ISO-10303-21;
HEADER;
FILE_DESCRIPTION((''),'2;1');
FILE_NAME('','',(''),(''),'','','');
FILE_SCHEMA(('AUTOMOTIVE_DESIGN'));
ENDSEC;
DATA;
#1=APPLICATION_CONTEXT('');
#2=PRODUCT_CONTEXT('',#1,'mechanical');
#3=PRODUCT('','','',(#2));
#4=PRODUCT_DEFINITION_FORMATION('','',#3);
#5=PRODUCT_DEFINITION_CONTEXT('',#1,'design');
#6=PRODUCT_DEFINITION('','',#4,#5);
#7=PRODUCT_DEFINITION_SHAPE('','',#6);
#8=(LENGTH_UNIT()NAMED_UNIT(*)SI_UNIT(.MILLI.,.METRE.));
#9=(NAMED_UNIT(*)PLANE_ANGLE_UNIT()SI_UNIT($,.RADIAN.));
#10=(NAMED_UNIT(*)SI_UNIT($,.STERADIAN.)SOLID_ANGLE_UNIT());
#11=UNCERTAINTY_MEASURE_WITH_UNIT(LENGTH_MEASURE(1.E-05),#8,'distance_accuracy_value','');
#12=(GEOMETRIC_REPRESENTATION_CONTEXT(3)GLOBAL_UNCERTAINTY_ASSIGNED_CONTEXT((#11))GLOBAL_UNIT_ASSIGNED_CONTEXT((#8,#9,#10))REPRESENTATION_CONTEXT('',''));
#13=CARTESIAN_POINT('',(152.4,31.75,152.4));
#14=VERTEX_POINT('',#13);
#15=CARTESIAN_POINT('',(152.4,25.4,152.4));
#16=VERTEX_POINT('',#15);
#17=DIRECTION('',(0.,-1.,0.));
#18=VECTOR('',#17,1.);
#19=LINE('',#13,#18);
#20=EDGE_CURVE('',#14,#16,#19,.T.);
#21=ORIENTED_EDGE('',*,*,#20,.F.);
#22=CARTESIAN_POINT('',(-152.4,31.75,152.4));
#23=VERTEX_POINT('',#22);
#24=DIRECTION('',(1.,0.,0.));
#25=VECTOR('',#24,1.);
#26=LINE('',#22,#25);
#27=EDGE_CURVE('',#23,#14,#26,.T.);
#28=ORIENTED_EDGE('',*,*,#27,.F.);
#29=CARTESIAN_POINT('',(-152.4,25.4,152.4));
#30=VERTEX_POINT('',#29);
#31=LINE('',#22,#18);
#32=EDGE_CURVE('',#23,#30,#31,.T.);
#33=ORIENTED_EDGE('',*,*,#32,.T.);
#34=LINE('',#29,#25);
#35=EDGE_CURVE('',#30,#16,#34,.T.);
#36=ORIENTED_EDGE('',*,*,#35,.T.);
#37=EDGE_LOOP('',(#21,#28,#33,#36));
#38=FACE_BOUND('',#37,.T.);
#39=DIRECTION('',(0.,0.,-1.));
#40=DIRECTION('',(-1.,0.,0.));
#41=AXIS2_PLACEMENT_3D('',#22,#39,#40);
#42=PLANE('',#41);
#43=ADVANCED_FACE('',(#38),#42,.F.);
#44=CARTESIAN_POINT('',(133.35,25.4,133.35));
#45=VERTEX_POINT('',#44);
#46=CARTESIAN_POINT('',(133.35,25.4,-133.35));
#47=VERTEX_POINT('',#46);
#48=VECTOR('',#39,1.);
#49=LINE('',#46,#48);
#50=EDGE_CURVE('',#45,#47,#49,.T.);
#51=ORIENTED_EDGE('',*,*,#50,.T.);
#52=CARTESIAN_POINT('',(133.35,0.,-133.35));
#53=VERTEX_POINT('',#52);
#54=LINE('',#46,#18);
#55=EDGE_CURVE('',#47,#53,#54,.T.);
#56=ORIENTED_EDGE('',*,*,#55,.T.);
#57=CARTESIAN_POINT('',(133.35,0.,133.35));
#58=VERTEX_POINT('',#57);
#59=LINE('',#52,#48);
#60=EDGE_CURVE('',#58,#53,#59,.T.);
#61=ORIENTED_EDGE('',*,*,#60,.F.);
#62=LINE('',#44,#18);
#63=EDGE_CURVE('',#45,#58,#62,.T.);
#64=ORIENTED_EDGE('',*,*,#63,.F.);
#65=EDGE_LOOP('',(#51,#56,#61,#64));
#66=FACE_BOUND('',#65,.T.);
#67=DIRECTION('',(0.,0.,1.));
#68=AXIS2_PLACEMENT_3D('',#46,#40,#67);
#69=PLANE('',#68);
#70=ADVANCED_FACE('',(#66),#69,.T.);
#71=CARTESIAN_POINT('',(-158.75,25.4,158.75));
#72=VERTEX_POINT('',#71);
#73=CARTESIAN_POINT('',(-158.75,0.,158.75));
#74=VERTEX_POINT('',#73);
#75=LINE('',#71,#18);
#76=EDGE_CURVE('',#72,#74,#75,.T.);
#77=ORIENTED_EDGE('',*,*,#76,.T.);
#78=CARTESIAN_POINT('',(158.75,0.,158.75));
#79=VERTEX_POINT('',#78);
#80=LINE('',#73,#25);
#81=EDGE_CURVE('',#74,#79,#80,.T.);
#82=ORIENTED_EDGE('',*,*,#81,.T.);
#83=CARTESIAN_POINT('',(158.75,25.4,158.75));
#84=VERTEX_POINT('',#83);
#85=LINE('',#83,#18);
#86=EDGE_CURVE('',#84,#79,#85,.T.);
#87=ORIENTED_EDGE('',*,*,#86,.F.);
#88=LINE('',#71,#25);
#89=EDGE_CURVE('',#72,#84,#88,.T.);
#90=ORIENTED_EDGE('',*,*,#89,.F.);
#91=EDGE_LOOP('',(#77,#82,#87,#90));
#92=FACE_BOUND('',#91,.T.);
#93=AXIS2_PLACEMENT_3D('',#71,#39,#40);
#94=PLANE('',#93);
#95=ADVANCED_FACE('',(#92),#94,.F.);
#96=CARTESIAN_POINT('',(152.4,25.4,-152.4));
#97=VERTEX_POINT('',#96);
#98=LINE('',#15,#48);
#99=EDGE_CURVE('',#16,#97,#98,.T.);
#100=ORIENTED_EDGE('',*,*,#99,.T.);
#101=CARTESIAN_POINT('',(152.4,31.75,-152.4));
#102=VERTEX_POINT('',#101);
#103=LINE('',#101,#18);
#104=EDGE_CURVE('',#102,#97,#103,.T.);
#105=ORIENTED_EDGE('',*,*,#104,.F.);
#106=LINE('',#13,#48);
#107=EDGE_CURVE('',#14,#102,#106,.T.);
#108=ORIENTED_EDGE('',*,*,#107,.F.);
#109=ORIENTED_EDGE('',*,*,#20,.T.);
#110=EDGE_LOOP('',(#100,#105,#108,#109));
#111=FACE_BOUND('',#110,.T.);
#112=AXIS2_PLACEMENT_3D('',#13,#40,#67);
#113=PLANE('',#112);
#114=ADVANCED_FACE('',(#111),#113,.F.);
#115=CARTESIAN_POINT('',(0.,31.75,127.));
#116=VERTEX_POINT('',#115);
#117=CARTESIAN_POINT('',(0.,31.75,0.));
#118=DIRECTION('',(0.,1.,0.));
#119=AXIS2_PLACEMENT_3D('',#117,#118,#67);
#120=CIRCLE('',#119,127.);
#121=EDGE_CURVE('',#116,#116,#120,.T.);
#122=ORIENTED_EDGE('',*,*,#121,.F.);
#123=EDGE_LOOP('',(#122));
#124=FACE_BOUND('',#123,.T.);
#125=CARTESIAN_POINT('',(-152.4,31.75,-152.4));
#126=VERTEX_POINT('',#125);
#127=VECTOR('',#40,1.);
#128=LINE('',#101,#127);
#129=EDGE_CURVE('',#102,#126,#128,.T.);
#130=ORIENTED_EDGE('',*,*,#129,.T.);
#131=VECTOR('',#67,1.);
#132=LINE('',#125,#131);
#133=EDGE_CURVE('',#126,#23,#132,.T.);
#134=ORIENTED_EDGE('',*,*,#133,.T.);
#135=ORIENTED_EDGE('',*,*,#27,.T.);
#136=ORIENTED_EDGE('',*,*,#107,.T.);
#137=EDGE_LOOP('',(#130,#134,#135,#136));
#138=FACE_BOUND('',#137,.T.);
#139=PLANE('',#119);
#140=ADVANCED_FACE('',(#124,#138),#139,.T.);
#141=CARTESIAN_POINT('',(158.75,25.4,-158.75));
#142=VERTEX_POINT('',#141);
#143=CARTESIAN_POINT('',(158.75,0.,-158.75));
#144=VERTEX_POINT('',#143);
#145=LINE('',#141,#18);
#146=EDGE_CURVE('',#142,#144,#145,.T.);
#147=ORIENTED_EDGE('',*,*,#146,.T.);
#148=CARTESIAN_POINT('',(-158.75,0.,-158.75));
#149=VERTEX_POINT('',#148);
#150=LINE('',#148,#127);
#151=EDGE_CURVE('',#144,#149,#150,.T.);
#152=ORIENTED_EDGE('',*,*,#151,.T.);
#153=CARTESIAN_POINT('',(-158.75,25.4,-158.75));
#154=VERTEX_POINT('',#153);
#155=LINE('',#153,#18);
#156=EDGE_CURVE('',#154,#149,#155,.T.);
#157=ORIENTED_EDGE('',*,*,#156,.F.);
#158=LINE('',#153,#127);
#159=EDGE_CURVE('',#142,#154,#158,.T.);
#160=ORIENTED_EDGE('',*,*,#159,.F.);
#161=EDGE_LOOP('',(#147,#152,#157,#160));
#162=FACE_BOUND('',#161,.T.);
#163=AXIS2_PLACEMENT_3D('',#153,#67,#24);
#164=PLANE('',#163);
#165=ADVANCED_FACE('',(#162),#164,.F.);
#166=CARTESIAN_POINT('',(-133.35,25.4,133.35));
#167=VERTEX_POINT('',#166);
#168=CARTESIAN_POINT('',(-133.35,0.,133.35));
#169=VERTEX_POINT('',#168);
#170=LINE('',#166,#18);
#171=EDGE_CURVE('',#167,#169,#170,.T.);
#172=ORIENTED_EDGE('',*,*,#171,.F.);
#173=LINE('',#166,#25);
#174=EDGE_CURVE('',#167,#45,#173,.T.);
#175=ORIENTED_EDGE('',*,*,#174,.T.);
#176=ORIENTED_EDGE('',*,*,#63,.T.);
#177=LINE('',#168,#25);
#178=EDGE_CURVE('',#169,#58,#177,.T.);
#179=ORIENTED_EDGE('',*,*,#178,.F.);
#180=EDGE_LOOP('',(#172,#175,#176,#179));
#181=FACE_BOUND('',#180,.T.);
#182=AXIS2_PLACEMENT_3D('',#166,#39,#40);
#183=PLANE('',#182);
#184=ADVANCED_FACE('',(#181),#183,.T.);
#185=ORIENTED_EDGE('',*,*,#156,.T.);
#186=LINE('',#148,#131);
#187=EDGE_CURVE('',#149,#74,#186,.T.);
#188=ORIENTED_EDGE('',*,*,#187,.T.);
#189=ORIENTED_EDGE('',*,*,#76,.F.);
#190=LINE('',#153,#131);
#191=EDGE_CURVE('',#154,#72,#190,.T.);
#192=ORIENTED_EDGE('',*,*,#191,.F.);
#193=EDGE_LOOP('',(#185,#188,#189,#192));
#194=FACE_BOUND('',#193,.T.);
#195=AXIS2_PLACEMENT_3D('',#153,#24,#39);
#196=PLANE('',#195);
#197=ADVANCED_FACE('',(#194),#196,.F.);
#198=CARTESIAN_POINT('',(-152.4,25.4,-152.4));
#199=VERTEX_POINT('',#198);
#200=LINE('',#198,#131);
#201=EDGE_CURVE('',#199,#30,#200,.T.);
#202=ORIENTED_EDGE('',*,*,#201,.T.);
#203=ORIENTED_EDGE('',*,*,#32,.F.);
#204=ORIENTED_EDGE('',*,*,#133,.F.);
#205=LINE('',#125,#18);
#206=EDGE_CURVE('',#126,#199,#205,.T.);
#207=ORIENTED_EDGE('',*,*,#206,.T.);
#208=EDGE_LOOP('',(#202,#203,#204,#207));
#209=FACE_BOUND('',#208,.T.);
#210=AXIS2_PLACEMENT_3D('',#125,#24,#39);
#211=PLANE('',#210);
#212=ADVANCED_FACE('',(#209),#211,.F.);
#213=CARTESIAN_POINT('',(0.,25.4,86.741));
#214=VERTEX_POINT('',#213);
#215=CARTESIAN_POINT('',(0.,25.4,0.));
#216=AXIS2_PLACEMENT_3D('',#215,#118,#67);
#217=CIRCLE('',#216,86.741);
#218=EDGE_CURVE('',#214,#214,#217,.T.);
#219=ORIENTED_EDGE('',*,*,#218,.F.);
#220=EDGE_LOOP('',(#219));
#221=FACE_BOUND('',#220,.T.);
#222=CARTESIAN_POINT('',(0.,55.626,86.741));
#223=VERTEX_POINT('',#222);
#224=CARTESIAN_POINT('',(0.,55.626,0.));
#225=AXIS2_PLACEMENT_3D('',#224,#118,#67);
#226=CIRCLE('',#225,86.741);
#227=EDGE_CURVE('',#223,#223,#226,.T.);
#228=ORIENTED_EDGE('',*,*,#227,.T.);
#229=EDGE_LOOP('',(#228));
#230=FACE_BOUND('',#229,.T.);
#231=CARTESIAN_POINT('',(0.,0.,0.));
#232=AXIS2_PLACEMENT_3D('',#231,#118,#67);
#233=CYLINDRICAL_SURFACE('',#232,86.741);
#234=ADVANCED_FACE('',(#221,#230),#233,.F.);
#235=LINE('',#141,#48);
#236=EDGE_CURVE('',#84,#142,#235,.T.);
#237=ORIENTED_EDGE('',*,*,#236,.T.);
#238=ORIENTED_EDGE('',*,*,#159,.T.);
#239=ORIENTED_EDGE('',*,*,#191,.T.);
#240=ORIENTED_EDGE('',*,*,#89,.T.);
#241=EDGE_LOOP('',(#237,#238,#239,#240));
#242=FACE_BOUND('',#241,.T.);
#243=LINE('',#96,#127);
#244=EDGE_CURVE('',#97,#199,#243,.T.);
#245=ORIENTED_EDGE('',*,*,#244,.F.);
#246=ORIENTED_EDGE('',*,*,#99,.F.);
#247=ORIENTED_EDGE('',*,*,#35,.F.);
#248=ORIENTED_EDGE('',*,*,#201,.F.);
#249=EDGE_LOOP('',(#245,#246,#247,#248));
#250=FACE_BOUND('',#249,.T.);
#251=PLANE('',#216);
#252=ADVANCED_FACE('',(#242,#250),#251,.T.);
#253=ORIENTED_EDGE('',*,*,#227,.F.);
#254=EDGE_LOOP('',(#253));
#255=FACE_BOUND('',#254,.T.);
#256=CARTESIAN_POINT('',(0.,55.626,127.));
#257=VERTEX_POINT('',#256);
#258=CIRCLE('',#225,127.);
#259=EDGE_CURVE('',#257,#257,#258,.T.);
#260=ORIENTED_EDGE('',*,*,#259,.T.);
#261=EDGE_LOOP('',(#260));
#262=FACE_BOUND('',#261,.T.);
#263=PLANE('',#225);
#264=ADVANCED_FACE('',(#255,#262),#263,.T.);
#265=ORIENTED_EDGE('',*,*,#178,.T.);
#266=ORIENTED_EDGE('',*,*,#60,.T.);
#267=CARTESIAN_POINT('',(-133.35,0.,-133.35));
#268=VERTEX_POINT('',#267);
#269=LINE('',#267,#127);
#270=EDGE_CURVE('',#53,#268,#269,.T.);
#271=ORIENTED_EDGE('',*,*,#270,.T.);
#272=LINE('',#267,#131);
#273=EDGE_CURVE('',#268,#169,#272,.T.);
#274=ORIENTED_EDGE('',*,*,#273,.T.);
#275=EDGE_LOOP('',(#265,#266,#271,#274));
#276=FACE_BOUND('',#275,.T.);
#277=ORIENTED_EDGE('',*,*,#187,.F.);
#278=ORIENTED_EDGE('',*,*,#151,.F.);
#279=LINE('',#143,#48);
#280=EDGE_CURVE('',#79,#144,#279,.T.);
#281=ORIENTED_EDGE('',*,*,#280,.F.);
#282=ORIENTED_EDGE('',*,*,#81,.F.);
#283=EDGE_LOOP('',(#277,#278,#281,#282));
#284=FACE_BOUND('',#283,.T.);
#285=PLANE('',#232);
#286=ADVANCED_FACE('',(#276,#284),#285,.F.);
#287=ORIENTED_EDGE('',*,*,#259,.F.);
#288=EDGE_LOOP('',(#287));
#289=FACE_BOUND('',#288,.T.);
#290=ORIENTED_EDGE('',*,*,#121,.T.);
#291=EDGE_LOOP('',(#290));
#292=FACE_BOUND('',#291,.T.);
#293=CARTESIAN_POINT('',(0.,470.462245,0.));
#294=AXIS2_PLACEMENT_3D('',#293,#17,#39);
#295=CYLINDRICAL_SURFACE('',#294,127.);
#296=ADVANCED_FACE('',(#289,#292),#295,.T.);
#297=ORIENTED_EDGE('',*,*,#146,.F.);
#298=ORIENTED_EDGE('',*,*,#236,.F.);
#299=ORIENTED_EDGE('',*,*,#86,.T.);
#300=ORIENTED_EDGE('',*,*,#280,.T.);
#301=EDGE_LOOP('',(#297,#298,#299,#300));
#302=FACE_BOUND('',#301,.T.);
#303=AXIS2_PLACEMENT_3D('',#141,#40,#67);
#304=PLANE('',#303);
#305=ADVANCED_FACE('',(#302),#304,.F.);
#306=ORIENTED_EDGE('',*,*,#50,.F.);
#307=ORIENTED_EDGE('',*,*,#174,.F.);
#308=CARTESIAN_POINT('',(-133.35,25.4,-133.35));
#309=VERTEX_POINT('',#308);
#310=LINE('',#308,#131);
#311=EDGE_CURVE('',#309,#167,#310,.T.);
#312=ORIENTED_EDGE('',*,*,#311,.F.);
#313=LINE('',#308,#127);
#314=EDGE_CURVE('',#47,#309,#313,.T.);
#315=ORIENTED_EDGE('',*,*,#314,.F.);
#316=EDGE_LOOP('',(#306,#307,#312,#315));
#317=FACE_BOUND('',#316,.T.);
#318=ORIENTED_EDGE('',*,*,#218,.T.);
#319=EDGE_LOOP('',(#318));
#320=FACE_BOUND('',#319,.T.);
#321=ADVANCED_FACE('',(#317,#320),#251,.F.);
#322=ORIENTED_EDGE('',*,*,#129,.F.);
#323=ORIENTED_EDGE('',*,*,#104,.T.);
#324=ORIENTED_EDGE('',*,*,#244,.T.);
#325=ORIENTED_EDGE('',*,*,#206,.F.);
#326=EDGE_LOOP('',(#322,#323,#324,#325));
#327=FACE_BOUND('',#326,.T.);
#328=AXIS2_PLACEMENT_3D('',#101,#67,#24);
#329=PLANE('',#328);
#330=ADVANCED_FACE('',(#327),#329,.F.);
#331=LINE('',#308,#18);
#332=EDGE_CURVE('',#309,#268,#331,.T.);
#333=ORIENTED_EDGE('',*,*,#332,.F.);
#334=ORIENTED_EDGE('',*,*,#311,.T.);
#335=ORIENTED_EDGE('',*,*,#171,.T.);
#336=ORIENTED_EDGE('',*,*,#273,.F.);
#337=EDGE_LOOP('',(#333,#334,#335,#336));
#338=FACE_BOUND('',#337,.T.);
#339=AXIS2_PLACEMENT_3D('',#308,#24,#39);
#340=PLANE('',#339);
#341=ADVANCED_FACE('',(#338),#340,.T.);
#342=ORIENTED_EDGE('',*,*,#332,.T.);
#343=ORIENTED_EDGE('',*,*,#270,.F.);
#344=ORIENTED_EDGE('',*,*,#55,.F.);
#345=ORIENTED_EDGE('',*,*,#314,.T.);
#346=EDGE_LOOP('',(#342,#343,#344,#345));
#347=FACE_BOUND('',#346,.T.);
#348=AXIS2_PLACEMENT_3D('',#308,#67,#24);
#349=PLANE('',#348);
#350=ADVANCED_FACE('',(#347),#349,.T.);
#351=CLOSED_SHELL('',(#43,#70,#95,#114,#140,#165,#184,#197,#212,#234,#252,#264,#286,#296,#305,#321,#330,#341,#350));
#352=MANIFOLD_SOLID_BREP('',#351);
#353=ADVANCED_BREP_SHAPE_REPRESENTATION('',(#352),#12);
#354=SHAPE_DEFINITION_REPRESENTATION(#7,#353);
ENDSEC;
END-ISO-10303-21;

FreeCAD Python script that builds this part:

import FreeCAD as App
import Part
import Sketcher
Q = App.Units.Quantity

doc = App.newDocument("Part")
body = doc.addObject("PartDesign::Body", "Body")

sketch1 = body.newObject("Sketcher::SketchObject", "Sketch")
sketch1.AttachmentSupport = (doc.getObject("XZ_Plane"), [""])
sketch1.MapMode = "FlatFace"
sketch1.addGeometry([
    Part.LineSegment(App.Vector(-159, -159, 0), App.Vector(-159, 159, 0)),
    Part.LineSegment(App.Vector(-159, 159, 0), App.Vector(159, 159, 0)),
    Part.LineSegment(App.Vector(159, 159, 0), App.Vector(159, -159, 0)),
    Part.LineSegment(App.Vector(159, -159, 0), App.Vector(-159, -159, 0)),
    Part.LineSegment(App.Vector(133, 133, 0), App.Vector(-133, 133, 0)),
    Part.LineSegment(App.Vector(-133, 133, 0), App.Vector(-133, -133, 0)),
    Part.LineSegment(App.Vector(-133, -133, 0), App.Vector(133, -133, 0)),
    Part.LineSegment(App.Vector(133, -133, 0), App.Vector(133, 133, 0)),
], False)
sketch1.addConstraint([
    Sketcher.Constraint("Coincident", 0, 2, 1, 1),
    Sketcher.Constraint("Coincident", 1, 2, 2, 1),
    Sketcher.Constraint("Coincident", 2, 2, 3, 1),
    Sketcher.Constraint("Coincident", 3, 2, 0, 1),
    Sketcher.Constraint("Coincident", 4, 2, 5, 1),
    Sketcher.Constraint("Coincident", 5, 2, 6, 1),
    Sketcher.Constraint("Coincident", 6, 2, 7, 1),
    Sketcher.Constraint("Coincident", 7, 2, 4, 1),
    Sketcher.Constraint("Vertical", 0),
    Sketcher.Constraint("Horizontal", 1),
    Sketcher.Constraint("Vertical", 2),
    Sketcher.Constraint("Horizontal", 3),
    Sketcher.Constraint("Horizontal", 4),
    Sketcher.Constraint("Vertical", 5),
    Sketcher.Constraint("Horizontal", 6),
    Sketcher.Constraint("Vertical", 7),
    Sketcher.Constraint("Symmetric", 0, 2, 2, 2, -1, 1),
    Sketcher.Constraint("Symmetric", 4, 2, 6, 2, -1, 1),
    Sketcher.Constraint("Equal", 3, 0),
    Sketcher.Constraint("Equal", 6, 5),
    Sketcher.Constraint("DistanceX", 1, 1, 1, 2, Q("12.5 in")),
    Sketcher.Constraint("DistanceX", 4, 2, 4, 1, Q("10.5 in")),
])
pad1 = body.newObject("PartDesign::Pad", "Pad")
pad1.Profile = sketch1
pad1.Length = Q("1 in")
pad1.Reversed = True

sketch2 = body.newObject("Sketcher::SketchObject", "Sketch001")
sketch2.AttachmentSupport = (doc.getObject("XZ_Plane"), [""])
sketch2.MapMode = "FlatFace"
sketch2.AttachmentOffset = App.Placement(App.Vector(0, 0, -1 * 25.4), App.Rotation())
sketch2.addGeometry([
    Part.LineSegment(App.Vector(-152, -152, 0), App.Vector(-152, 152, 0)),
    Part.LineSegment(App.Vector(-152, 152, 0), App.Vector(152, 152, 0)),
    Part.LineSegment(App.Vector(152, 152, 0), App.Vector(152, -152, 0)),
    Part.LineSegment(App.Vector(152, -152, 0), App.Vector(-152, -152, 0)),
], False)
sketch2.addConstraint([
    Sketcher.Constraint("Coincident", 0, 2, 1, 1),
    Sketcher.Constraint("Coincident", 1, 2, 2, 1),
    Sketcher.Constraint("Coincident", 2, 2, 3, 1),
    Sketcher.Constraint("Coincident", 3, 2, 0, 1),
    Sketcher.Constraint("Vertical", 0),
    Sketcher.Constraint("Horizontal", 1),
    Sketcher.Constraint("Vertical", 2),
    Sketcher.Constraint("Horizontal", 3),
    Sketcher.Constraint("Symmetric", 0, 2, 2, 2, -1, 1),
    Sketcher.Constraint("Equal", 3, 0),
    Sketcher.Constraint("DistanceX", 1, 1, 1, 2, Q("12 in")),
])
pad2 = body.newObject("PartDesign::Pad", "Pad001")
pad2.Profile = sketch2
pad2.Length = Q("0.25 in")
pad2.Reversed = True

sketch3 = body.newObject("Sketcher::SketchObject", "Sketch002")
sketch3.AttachmentSupport = (doc.getObject("XZ_Plane"), [""])
sketch3.MapMode = "FlatFace"
sketch3.AttachmentOffset = App.Placement(App.Vector(0, 0, -1.25 * 25.4), App.Rotation())
sketch3.addGeometry(Part.Circle(App.Vector(0, 0, 0), App.Vector(0, 0, 1), 127), False)
sketch3.addConstraint([
    Sketcher.Constraint("Coincident", 0, 3, -1, 1),
    Sketcher.Constraint("Diameter", 0, Q("10 in")),
])
pad3 = body.newObject("PartDesign::Pad", "Pad002")
pad3.Profile = sketch3
pad3.Length = Q("0.94 in")
pad3.Reversed = True

sketch4 = body.newObject("Sketcher::SketchObject", "Sketch003")
sketch4.AttachmentSupport = (doc.getObject("XZ_Plane"), [""])
sketch4.MapMode = "FlatFace"
sketch4.AttachmentOffset = App.Placement(App.Vector(0, 0, -2.19 * 25.4), App.Rotation())
sketch4.addGeometry(Part.Circle(App.Vector(0, 0, 0), App.Vector(0, 0, 1), 87), False)
sketch4.addConstraint([
    Sketcher.Constraint("Coincident", 0, 3, -1, 1),
    Sketcher.Constraint("Diameter", 0, Q("6.83 in")),
])
pocket1 = body.newObject("PartDesign::Pocket", "Pocket")
pocket1.Profile = sketch4
pocket1.Type = "ThroughAll"
pocket1.Reversed = True

doc.recompute()
